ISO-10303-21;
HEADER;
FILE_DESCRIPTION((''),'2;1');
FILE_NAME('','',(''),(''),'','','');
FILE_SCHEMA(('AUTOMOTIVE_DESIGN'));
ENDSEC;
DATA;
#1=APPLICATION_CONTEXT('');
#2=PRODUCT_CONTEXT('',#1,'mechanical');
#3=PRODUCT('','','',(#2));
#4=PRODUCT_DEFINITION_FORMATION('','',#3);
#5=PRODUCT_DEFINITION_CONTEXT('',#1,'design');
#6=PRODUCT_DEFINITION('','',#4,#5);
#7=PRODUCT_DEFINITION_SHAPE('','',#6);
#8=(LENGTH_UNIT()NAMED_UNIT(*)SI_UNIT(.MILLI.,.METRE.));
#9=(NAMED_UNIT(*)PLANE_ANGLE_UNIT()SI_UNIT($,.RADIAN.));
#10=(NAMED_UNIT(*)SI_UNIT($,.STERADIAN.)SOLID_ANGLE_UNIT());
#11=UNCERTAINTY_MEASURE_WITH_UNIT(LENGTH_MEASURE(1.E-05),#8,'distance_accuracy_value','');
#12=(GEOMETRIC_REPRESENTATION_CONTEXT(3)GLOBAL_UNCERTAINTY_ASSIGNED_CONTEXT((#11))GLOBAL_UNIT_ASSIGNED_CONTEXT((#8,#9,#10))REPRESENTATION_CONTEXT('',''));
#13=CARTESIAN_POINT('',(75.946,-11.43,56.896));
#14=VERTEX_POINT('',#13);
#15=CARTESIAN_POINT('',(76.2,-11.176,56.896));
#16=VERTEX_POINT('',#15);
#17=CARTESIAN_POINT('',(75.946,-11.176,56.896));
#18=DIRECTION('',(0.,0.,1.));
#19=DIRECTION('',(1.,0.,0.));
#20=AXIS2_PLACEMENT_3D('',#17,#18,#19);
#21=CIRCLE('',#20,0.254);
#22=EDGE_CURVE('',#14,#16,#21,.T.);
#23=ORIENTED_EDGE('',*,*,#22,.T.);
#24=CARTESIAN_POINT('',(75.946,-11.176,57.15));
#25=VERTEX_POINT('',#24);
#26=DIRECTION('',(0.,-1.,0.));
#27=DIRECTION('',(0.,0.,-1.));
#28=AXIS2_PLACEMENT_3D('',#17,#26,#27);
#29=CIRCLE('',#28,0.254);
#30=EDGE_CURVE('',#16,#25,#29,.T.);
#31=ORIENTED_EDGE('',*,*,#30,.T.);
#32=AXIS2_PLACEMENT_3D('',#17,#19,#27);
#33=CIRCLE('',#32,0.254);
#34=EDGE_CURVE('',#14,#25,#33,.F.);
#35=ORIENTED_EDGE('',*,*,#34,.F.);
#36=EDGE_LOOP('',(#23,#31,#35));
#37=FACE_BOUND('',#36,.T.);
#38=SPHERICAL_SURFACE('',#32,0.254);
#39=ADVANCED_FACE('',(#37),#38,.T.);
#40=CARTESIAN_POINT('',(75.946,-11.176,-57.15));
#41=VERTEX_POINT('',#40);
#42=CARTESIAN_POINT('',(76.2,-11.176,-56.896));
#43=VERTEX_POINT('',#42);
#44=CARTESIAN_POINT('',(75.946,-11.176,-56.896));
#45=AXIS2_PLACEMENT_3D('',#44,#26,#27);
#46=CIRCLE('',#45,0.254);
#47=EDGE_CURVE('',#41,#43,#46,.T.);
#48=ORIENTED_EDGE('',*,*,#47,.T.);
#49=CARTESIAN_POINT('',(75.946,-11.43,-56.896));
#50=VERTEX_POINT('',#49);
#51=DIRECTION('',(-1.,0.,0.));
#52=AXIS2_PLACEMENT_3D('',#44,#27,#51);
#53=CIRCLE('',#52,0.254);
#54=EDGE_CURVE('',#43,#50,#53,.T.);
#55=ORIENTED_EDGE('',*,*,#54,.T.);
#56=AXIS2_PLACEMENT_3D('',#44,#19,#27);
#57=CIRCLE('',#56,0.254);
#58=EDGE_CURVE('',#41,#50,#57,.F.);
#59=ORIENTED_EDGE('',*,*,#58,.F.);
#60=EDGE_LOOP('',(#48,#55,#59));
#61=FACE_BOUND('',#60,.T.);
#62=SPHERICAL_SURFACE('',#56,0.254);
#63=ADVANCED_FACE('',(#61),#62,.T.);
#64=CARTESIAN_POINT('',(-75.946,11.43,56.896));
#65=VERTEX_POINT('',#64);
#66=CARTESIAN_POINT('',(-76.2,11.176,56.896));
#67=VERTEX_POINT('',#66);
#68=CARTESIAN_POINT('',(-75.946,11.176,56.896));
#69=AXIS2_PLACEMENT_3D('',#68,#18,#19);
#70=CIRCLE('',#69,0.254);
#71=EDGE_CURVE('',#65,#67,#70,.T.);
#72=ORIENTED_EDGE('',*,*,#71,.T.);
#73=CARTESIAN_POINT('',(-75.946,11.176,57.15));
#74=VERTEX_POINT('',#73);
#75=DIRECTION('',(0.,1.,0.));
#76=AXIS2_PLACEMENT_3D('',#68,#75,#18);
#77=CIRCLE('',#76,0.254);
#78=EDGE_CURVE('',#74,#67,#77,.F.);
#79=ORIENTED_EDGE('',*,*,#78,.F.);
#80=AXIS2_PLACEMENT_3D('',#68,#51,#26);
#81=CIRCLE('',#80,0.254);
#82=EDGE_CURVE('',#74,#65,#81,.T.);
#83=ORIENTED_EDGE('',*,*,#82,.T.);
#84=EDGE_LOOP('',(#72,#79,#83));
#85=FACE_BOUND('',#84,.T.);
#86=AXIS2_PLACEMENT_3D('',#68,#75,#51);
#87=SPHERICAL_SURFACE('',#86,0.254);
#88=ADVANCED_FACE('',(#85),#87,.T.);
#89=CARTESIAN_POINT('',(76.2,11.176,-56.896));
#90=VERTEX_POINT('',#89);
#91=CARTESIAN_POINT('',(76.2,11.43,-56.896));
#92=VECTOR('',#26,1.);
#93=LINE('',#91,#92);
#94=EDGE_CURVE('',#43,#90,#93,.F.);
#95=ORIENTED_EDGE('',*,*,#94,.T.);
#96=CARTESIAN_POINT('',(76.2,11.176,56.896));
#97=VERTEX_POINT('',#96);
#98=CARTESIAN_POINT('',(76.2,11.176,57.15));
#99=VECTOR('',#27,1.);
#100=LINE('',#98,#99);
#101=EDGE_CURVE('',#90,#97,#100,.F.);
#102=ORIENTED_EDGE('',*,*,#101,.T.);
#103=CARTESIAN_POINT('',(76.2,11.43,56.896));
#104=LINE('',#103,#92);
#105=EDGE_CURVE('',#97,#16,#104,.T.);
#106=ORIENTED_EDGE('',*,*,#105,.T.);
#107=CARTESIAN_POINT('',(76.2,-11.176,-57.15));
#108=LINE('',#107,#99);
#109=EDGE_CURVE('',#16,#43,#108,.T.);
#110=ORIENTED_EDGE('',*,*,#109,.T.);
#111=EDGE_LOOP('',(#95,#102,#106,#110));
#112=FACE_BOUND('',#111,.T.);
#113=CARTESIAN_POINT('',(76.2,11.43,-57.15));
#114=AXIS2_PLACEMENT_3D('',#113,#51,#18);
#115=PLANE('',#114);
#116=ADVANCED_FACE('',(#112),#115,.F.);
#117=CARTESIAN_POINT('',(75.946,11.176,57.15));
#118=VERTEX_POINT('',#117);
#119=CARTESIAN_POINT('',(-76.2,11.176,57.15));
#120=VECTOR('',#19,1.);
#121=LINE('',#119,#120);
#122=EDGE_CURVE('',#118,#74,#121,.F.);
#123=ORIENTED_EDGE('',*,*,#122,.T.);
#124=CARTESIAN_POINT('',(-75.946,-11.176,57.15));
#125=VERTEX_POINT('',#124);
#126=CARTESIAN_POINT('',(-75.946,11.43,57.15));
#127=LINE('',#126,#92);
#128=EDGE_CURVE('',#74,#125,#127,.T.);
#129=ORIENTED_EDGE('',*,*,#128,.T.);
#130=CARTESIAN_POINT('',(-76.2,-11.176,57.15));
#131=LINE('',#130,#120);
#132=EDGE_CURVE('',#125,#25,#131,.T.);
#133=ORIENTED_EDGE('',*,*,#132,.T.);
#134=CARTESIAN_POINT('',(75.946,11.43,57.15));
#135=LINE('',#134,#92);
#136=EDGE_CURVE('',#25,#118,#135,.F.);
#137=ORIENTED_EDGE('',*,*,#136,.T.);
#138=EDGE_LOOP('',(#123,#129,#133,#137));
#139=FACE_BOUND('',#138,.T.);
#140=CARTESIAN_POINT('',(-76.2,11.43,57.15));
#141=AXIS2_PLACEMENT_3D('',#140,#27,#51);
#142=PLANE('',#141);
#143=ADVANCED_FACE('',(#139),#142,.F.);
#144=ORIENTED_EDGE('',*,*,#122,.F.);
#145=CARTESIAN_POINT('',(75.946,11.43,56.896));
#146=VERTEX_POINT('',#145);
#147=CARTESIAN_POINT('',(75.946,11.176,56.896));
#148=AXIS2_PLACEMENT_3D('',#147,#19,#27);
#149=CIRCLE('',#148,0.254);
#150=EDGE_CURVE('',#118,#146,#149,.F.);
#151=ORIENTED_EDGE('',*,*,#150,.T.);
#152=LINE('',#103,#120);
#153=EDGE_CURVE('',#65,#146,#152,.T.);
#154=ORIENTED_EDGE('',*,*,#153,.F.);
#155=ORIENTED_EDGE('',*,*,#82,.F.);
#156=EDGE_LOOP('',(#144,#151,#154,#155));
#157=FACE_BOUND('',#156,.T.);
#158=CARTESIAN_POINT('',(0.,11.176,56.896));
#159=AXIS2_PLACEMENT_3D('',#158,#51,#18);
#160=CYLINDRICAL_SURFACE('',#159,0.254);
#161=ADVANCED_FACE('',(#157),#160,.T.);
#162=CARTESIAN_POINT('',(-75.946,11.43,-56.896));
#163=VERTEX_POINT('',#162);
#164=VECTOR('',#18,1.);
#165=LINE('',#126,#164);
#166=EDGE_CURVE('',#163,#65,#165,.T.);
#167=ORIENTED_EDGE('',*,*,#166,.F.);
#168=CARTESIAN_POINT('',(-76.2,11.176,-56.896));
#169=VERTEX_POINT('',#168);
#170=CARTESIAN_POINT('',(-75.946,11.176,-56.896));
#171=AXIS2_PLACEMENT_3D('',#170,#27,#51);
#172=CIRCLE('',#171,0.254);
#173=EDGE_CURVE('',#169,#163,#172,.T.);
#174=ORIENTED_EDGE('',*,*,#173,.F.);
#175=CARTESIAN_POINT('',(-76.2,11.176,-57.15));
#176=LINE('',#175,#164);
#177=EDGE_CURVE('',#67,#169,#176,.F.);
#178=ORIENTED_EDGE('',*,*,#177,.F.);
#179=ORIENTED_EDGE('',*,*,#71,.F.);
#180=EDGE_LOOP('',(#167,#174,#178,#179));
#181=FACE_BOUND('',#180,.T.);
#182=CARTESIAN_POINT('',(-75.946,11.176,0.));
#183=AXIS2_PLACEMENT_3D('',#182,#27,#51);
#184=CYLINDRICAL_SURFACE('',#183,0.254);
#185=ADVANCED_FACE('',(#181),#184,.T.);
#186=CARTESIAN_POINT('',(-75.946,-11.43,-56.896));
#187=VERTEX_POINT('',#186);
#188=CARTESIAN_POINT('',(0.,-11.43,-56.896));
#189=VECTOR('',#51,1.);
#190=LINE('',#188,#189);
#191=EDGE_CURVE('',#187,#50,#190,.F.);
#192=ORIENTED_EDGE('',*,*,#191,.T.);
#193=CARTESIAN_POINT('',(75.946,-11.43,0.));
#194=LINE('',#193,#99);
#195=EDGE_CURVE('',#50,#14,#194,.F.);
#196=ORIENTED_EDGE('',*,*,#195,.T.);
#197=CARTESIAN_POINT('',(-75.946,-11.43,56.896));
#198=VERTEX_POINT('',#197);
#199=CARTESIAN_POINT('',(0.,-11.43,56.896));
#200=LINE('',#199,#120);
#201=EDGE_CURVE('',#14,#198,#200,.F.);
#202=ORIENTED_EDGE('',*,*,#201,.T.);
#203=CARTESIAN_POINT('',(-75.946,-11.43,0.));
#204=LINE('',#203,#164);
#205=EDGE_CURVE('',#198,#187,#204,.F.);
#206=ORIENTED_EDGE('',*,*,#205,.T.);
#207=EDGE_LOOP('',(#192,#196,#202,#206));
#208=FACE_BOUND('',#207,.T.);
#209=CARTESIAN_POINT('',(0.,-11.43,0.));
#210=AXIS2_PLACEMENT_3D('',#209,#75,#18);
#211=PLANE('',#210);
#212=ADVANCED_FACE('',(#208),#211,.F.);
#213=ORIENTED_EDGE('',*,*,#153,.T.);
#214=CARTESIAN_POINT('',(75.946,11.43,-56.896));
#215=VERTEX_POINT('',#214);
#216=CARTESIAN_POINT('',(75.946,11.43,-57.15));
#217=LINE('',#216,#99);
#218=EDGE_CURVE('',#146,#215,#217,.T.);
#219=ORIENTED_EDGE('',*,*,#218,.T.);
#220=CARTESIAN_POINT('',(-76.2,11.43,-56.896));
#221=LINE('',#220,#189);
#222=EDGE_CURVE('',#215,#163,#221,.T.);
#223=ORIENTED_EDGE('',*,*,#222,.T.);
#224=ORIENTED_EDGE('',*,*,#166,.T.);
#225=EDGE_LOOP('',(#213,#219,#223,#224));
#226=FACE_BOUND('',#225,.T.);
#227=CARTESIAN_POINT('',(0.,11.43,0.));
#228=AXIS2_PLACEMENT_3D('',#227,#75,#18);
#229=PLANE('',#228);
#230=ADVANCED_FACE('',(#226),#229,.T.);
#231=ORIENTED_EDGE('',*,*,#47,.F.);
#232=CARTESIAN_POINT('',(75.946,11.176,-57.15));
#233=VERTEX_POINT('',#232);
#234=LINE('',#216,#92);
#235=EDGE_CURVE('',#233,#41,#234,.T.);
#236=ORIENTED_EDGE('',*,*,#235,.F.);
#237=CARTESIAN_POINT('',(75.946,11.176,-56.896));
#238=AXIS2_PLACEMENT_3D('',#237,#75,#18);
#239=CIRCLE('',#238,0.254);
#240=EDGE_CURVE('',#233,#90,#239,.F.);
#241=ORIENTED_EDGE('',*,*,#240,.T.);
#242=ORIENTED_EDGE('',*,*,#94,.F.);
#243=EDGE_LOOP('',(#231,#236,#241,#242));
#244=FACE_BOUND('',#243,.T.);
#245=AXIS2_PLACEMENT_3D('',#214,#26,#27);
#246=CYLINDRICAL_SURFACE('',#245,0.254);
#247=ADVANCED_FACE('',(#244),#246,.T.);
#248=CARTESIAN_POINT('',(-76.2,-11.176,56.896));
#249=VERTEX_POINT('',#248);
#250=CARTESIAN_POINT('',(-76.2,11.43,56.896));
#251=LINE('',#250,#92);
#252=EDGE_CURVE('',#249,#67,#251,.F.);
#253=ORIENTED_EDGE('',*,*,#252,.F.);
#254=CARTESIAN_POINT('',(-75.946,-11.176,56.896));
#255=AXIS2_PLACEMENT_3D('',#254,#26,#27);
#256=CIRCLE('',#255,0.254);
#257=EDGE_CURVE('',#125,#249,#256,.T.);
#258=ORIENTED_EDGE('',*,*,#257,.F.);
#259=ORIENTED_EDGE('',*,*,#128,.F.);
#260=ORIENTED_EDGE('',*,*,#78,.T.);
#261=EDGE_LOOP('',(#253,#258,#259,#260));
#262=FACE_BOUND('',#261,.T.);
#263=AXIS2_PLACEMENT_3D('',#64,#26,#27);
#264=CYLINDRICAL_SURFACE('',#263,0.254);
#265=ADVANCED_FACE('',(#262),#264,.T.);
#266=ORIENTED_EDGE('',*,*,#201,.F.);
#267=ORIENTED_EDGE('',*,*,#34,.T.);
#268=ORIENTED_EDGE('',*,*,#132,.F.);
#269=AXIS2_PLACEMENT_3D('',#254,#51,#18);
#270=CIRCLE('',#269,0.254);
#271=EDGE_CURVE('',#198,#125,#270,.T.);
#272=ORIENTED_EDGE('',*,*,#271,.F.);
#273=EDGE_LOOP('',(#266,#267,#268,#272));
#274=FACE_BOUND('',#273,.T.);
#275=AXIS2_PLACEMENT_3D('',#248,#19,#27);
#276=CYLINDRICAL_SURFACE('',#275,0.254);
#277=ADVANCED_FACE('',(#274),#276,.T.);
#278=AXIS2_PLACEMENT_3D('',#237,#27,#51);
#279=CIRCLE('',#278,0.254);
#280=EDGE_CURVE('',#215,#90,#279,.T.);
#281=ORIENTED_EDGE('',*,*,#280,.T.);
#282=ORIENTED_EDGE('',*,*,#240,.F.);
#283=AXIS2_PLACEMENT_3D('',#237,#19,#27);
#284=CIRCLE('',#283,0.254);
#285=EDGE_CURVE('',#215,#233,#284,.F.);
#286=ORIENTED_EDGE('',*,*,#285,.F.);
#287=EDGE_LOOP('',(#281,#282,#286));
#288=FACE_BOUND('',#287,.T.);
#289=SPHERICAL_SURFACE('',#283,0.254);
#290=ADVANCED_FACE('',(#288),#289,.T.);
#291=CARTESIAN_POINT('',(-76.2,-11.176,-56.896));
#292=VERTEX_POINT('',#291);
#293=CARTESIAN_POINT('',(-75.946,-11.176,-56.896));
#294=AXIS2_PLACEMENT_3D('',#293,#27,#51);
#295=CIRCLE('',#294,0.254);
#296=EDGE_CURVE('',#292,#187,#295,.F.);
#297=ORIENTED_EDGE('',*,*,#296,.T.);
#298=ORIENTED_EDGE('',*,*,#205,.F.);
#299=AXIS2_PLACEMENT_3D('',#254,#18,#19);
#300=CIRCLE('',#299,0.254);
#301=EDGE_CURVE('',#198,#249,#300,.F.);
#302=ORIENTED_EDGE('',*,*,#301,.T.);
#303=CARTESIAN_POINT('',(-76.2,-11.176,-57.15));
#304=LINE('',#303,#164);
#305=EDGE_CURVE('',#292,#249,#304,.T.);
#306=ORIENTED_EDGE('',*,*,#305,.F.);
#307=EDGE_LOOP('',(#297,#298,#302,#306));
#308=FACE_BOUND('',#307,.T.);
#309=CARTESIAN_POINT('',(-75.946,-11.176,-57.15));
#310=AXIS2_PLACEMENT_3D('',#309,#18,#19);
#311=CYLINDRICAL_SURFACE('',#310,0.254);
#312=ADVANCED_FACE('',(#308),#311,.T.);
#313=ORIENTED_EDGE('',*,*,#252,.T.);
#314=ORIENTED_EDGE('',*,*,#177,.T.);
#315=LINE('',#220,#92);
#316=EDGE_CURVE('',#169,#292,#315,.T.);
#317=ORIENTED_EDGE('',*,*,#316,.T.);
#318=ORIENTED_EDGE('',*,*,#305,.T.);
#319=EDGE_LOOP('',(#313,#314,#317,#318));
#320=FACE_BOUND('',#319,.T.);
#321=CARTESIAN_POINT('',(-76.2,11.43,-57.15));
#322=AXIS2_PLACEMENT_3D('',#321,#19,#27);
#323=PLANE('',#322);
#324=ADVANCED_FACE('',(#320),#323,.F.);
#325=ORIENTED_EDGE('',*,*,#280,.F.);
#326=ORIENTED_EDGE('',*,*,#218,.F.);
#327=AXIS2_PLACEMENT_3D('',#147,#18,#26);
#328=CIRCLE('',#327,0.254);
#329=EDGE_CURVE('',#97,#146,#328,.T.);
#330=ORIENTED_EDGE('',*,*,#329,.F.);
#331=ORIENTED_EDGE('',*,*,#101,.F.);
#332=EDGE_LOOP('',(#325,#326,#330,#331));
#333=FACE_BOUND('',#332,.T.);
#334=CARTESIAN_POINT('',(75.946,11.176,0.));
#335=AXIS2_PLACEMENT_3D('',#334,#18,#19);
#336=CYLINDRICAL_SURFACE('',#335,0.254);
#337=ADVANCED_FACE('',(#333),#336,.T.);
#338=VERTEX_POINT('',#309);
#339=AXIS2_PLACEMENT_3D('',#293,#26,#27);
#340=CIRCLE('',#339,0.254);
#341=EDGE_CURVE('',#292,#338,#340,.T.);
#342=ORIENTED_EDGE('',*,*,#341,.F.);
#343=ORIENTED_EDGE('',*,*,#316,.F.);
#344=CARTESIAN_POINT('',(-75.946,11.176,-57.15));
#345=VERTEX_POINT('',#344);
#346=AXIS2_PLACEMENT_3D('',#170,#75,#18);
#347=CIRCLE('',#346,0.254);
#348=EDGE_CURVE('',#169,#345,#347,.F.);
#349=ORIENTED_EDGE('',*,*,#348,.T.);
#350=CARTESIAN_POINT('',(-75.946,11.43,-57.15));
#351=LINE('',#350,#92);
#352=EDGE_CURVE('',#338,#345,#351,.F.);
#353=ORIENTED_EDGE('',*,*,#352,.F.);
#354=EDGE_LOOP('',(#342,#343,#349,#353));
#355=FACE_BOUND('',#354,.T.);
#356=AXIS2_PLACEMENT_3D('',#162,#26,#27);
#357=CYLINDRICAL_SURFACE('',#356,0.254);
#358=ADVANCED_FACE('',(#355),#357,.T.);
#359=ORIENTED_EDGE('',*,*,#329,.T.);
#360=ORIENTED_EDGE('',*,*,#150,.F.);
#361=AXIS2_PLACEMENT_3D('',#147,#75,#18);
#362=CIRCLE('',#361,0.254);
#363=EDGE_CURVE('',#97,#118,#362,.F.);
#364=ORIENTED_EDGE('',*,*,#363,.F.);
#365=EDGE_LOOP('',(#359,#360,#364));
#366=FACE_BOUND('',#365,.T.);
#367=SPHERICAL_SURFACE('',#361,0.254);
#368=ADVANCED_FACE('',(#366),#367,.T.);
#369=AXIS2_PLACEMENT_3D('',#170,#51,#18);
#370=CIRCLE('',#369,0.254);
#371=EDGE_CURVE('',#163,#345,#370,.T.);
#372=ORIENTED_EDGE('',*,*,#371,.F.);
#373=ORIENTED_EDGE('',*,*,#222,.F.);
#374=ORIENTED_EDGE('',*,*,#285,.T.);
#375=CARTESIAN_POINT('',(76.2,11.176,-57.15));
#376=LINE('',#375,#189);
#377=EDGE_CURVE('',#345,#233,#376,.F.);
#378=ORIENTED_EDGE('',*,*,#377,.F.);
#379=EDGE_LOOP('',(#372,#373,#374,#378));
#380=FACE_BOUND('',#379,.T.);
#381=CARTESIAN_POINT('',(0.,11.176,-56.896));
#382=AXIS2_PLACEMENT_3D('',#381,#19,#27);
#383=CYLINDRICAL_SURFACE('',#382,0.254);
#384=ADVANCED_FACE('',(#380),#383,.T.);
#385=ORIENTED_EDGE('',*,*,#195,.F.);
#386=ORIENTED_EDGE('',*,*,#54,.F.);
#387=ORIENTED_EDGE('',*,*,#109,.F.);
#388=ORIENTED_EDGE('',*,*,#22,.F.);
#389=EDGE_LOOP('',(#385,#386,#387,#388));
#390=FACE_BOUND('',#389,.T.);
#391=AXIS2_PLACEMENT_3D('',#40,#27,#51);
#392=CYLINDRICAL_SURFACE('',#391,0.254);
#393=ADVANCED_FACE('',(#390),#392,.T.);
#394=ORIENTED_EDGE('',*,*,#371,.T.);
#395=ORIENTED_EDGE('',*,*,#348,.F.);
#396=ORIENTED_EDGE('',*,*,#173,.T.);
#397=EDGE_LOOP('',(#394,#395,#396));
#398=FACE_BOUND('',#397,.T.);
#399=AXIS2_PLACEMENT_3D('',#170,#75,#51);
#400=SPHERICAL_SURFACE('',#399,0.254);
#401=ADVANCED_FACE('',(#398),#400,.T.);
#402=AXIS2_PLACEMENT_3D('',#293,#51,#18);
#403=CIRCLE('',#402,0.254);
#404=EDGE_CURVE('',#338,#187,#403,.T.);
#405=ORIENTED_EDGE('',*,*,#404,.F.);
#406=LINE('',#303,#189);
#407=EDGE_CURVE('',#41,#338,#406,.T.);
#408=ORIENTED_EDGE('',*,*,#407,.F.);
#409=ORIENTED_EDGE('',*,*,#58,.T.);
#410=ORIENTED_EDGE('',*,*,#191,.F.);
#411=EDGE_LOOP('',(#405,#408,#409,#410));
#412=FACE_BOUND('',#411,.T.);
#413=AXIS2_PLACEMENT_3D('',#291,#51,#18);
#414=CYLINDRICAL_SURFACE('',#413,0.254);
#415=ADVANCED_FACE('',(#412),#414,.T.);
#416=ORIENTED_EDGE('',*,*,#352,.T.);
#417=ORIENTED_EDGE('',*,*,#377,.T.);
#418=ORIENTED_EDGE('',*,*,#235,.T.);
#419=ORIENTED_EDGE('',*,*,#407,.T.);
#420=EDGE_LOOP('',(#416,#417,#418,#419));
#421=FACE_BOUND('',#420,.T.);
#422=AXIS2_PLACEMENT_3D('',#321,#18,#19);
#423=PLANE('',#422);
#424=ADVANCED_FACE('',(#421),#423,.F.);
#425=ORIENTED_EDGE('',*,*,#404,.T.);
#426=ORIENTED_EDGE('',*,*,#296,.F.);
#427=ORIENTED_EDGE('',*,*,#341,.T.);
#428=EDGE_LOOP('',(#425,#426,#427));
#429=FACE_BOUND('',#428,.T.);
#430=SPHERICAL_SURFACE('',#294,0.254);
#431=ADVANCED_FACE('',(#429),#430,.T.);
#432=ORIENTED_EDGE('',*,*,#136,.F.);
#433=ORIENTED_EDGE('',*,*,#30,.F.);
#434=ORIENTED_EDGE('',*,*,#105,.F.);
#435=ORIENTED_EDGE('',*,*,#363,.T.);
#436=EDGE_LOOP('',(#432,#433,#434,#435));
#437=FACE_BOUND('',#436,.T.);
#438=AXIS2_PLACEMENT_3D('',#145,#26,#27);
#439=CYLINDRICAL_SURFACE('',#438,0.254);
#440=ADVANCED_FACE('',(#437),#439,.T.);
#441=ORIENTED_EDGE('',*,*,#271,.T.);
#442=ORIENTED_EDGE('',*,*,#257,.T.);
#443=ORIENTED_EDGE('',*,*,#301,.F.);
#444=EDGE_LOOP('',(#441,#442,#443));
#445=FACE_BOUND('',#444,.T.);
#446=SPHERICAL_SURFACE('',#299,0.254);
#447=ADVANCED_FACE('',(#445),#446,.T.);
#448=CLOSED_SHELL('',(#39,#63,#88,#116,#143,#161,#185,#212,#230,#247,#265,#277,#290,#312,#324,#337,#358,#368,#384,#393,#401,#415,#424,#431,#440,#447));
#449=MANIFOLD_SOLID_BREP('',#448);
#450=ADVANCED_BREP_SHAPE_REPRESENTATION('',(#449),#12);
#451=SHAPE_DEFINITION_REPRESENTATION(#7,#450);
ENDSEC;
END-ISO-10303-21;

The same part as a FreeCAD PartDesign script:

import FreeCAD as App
import Part
import Sketcher
Q = App.Units.Quantity


def add_polygon(sketch, points):
    """Adds a closed chain of lines whose ends are joined by coincident constraints."""
    first, n = sketch.GeometryCount, len(points)
    for a, b in zip(points, points[1:] + points[:1]):
        sketch.addGeometry(Part.LineSegment(App.Vector(*a, 0), App.Vector(*b, 0)), False)
    for i in range(n):
        sketch.addConstraint(Sketcher.Constraint("Coincident", first + i, 2, first + (i + 1) % n, 1))

doc = App.newDocument("Part")
params = doc.addObject("Spreadsheet::Sheet", "Params")
for row, (alias, value) in enumerate([
    ("sketch1_width", "6 in"),
    ("sketch1_height", "4.5 in"),
    ("pad1_length", "0.9 in"),
    ("fillet_radius", "0.01 in"),
], start=1):
    params.set(f"A{row}", alias)
    params.set(f"B{row}", "=" + value)
    params.setAlias(f"B{row}", alias)

body = doc.addObject("PartDesign::Body", "Body")

# Sketch on XZ plane
sketch1 = body.newObject("Sketcher::SketchObject", "Sketch")
sketch1.AttachmentSupport = (doc.getObject("XZ_Plane"), [""])
sketch1.MapMode = "FlatFace"
add_polygon(sketch1, [(-76.2, -57.15), (-76.2, 57.15), (76.2, 57.15), (76.2, -57.15)])  # lines 0-3
sketch1.addConstraint(Sketcher.Constraint("Vertical", 0))
sketch1.addConstraint(Sketcher.Constraint("Horizontal", 1))
sketch1.addConstraint(Sketcher.Constraint("Vertical", 2))
sketch1.addConstraint(Sketcher.Constraint("Horizontal", 3))
sketch1.addConstraint(Sketcher.Constraint("Symmetric", 0, 2, 2, 2, -1, 1))
sketch1.addConstraint(Sketcher.Constraint("DistanceX", 1, 1, 1, 2, Q("6 in")))
sketch1.addConstraint(Sketcher.Constraint("DistanceY", 0, 1, 0, 2, Q("4.5 in")))
sketch1.setExpression("Constraints[9]", "Params.sketch1_width")
sketch1.setExpression("Constraints[10]", "Params.sketch1_height")
pad1 = body.newObject("PartDesign::Pad", "Pad")
pad1.Profile = sketch1
pad1.setExpression("Length", "Params.pad1_length")
pad1.Midplane = True
doc.recompute()

fillet = body.newObject("PartDesign::Fillet", "Fillet")
fillet.Base = (pad1, ["Edge1"])
fillet.UseAllEdges = True
fillet.setExpression("Radius", "Params.fillet_radius")

doc.recompute()
